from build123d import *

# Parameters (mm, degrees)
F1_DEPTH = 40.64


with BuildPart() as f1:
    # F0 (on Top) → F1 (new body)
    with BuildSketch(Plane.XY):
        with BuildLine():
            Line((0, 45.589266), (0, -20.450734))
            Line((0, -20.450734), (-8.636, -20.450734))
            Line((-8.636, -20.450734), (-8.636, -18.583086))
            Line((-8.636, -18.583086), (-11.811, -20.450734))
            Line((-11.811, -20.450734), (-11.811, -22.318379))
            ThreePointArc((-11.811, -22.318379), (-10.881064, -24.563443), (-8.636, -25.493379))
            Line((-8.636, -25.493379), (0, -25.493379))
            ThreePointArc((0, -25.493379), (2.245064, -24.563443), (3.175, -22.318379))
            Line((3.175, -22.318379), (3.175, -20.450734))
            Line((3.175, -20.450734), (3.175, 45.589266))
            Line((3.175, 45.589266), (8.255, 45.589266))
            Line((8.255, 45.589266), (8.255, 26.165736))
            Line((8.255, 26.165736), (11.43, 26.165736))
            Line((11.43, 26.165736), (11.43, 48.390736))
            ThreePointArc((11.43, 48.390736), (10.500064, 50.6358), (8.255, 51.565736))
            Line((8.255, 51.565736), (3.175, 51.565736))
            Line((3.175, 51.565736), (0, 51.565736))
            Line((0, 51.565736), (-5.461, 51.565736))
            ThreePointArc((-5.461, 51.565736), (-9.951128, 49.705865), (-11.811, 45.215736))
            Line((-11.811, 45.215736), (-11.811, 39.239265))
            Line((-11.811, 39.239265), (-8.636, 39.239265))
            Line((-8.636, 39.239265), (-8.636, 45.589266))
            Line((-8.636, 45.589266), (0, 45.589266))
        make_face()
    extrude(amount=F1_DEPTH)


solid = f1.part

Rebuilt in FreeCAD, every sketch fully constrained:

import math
import FreeCAD as App
import Part
import Sketcher

V = App.Vector
Q = App.Units.Quantity

doc = App.newDocument("Part")
body = doc.addObject("PartDesign::Body", "Body")

# Sketch on XY plane
sketch1 = doc.addObject("Sketcher::SketchObject", "Sketch")
body.addObject(sketch1)
sketch1.AttachmentSupport = (doc.XY_Plane, [""])
sketch1.MapMode = "FlatFace"
sketch1.addGeometry([
    Part.LineSegment(V(0, 45.589266, 0), V(0, -20.450734, 0)),  # 0
    Part.LineSegment(V(0, -20.450734, 0), V(-8.636, -20.450734, 0)),  # 1
    Part.LineSegment(V(-8.636, -20.450734, 0), V(-8.636, -18.583086, 0)),  # 2
    Part.LineSegment(V(-8.636, -18.583086, 0), V(-11.811, -20.450734, 0)),  # 3
    Part.LineSegment(V(-11.811, -20.450734, 0), V(-11.811, -22.318379, 0)),  # 4
    Part.ArcOfCircle(Part.Circle(V(-8.636, -22.318379, 0), V(0, 0, 1), 3.175), math.radians(-179.999998), math.radians(-90.000002)),  # 5
    Part.LineSegment(V(-8.636, -25.493379, 0), V(0, -25.493379, 0)),  # 6
    Part.ArcOfCircle(Part.Circle(V(0, -22.318379, 0), V(0, 0, 1), 3.175), math.radians(-89.999998), math.radians(-0.000002)),  # 7
    Part.LineSegment(V(3.175, -22.318379, 0), V(3.175, 45.589266, 0)),  # 8
    Part.LineSegment(V(3.175, 45.589266, 0), V(8.255, 45.589266, 0)),  # 9
    Part.LineSegment(V(8.255, 45.589266, 0), V(8.255, 26.165736, 0)),  # 10
    Part.LineSegment(V(8.255, 26.165736, 0), V(11.43, 26.165736, 0)),  # 11
    Part.LineSegment(V(11.43, 26.165736, 0), V(11.43, 48.390736, 0)),  # 12
    Part.ArcOfCircle(Part.Circle(V(8.255, 48.390736, 0), V(0, 0, 1), 3.175), math.radians(0.000002), math.radians(89.999998)),  # 13
    Part.LineSegment(V(8.255, 51.565736, 0), V(-5.461, 51.565736, 0)),  # 14
    Part.ArcOfCircle(Part.Circle(V(-5.461002, 45.215738, 0), V(0, 0, 1), 6.349998), math.radians(89.999986), math.radians(180.000014)),  # 15
    Part.LineSegment(V(-11.811, 45.215736, 0), V(-11.811, 39.239265, 0)),  # 16
    Part.LineSegment(V(-11.811, 39.239265, 0), V(-8.636, 39.239265, 0)),  # 17
    Part.LineSegment(V(-8.636, 39.239265, 0), V(-8.636, 45.589266, 0)),  # 18
    Part.LineSegment(V(-8.636, 45.589266, 0), V(0, 45.589266, 0)),  # 19
], False)
sketch1.addConstraint([
    Sketcher.Constraint("Coincident", 0, 2, 1, 1),
    Sketcher.Constraint("Coincident", 1, 2, 2, 1),
    Sketcher.Constraint("Coincident", 2, 2, 3, 1),
    Sketcher.Constraint("Coincident", 3, 2, 4, 1),
    Sketcher.Constraint("Tangent", 4, 2, 5, 1),
    Sketcher.Constraint("Tangent", 5, 2, 6, 1),
    Sketcher.Constraint("Tangent", 6, 2, 7, 1),
    Sketcher.Constraint("Tangent", 7, 2, 8, 1),
    Sketcher.Constraint("Coincident", 8, 2, 9, 1),
    Sketcher.Constraint("Coincident", 9, 2, 10, 1),
    Sketcher.Constraint("Coincident", 10, 2, 11, 1),
    Sketcher.Constraint("Coincident", 11, 2, 12, 1),
    Sketcher.Constraint("Tangent", 12, 2, 13, 1),
    Sketcher.Constraint("Tangent", 13, 2, 14, 1),
    Sketcher.Constraint("Tangent", 14, 2, 15, 1),
    Sketcher.Constraint("Tangent", 15, 2, 16, 1),
    Sketcher.Constraint("Coincident", 16, 2, 17, 1),
    Sketcher.Constraint("Coincident", 17, 2, 18, 1),
    Sketcher.Constraint("Coincident", 18, 2, 19, 1),
    Sketcher.Constraint("Coincident", 19, 2, 0, 1),
    Sketcher.Constraint("Vertical", 0),
    Sketcher.Constraint("Horizontal", 1),
    Sketcher.Constraint("Vertical", 2),
    Sketcher.Constraint("Vertical", 4),
    Sketcher.Constraint("Horizontal", 6),
    Sketcher.Constraint("Vertical", 8),
    Sketcher.Constraint("Horizontal", 9),
    Sketcher.Constraint("Vertical", 10),
    Sketcher.Constraint("Horizontal", 11),
    Sketcher.Constraint("Vertical", 12),
    Sketcher.Constraint("Horizontal", 14),
    Sketcher.Constraint("Vertical", 16),
    Sketcher.Constraint("Horizontal", 17),
    Sketcher.Constraint("Vertical", 18),
    Sketcher.Constraint("Horizontal", 19),
    Sketcher.Constraint("Equal", 5, 7),
    Sketcher.Constraint("Equal", 7, 13),
    Sketcher.Constraint("PointOnObject", 7, 3, -2),
    Sketcher.Constraint("PointOnObject", 0, 2, -2),
    Sketcher.Constraint("Horizontal", 1, 2, 3, 2),
    Sketcher.Constraint("Horizontal", 9, 2, 18, 2),
    Sketcher.Constraint("Vertical", 5, 3, 1, 2),
    Sketcher.Constraint("Vertical", 13, 3, 9, 2),
    Sketcher.Constraint("Vertical", 4, 2, 15, 2),
    Sketcher.Constraint("Vertical", 5, 2, 17, 2),
    Sketcher.Constraint("Radius", 15, Q("0.2499999 in")),
    Sketcher.Constraint("DistanceX", 9, 1, 9, 2, Q("0.2 in")),
    Sketcher.Constraint("DistanceY", 0, 2, 0, 1, Q("2.6 in")),
    Sketcher.Constraint("Radius", 5, Q("0.125 in")),
    Sketcher.Constraint("DistanceX", 1, 2, 1, 1, Q("0.34 in")),
    Sketcher.Constraint("DistanceY", 18, 1, 18, 2, Q("0.25 in")),
    Sketcher.Constraint("DistanceY", 12, 1, 12, 2, Q("0.875 in")),
    Sketcher.Constraint("DistanceY", 10, 2, 10, 1, 19.42353),
    Sketcher.Constraint("DistanceY", 2, 1, 2, 2, 1.867648),
    Sketcher.Constraint("DistanceY", 4, 2, 4, 1, 1.867645),
    Sketcher.Constraint("DistanceY", 5, 3, -1, 1, 22.318379),
])
pad1 = doc.addObject("PartDesign::Pad", "Pad")
body.addObject(pad1)
pad1.Profile = sketch1
pad1.Length = Q("1.6 in")

doc.recompute()
